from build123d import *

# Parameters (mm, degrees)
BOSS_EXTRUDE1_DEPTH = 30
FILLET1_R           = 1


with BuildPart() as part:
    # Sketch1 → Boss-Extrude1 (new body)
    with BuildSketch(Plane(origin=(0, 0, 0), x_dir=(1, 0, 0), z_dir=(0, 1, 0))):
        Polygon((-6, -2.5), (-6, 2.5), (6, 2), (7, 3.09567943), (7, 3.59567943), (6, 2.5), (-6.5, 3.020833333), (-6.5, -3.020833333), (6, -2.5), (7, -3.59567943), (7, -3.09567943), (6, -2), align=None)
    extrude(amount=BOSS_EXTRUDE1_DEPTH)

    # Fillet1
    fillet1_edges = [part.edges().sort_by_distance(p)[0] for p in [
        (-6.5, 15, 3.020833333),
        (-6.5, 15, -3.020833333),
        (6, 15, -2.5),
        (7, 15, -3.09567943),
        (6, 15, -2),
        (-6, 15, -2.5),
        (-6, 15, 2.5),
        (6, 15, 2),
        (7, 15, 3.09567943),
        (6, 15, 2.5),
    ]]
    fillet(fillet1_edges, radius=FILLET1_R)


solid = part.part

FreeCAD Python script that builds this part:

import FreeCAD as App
import Part
import Sketcher

V = App.Vector


def edges_at(feature, points):
    """Names of the edges that pass closest to the given points."""
    edges = feature.Shape.Edges
    near = lambda p: min(range(len(edges)), key=lambda i: edges[i].distToShape(Part.Vertex(*p))[0])
    return sorted({f"Edge{near(p) + 1}" for p in points})


def add_polygon(sketch, points):
    """Adds a closed chain of lines whose ends are joined by coincident constraints."""
    first, n = sketch.GeometryCount, len(points)
    for a, b in zip(points, points[1:] + points[:1]):
        sketch.addGeometry(Part.LineSegment(App.Vector(*a, 0), App.Vector(*b, 0)), False)
    for i in range(n):
        sketch.addConstraint(Sketcher.Constraint("Coincident", first + i, 2, first + (i + 1) % n, 1))

doc = App.newDocument("Part")
params = doc.addObject("Spreadsheet::Sheet", "Params")
for row, (alias, value) in enumerate([
    ("sketch1_height", "5 mm"),
    ("sketch1_height2", "0.5 mm"),
    ("pad1_length", "30 mm"),
    ("fillet_radius", "1 mm"),
], start=1):
    params.set(f"A{row}", alias)
    params.set(f"B{row}", "=" + value)
    params.setAlias(f"B{row}", alias)

body = doc.addObject("PartDesign::Body", "Body")

# Sketch on XZ plane
sketch1 = doc.addObject("Sketcher::SketchObject", "Sketch")
body.addObject(sketch1)
sketch1.AttachmentSupport = (doc.XZ_Plane, [""])
sketch1.MapMode = "FlatFace"
add_polygon(sketch1, [(-6, 2.5), (-6, -2.5), (6, -2), (7, -3.1), (7, -3.6), (6, -2.5), (-6.5, -3), (-6.5, 3), (6, 2.5), (7, 3.6), (7, 3.1), (6, 2)])  # lines 0-11
sketch1.addConstraint([
    Sketcher.Constraint("Vertical", 0),
    Sketcher.Constraint("Vertical", 3),
    Sketcher.Constraint("Vertical", 6),
    Sketcher.Constraint("Vertical", 9),
    Sketcher.Constraint("Symmetric", 0, 2, 7, 2, -1, 1),
    Sketcher.Constraint("Symmetric", 4, 2, 11, 2, -1, 1),
    Sketcher.Constraint("Symmetric", 3, 2, 8, 2, -1),
    Sketcher.Constraint("Symmetric", 1, 2, 10, 2, -1),
    Sketcher.Constraint("Parallel", 2, 4),
    Sketcher.Constraint("Parallel", 1, 5),
    Sketcher.Constraint("Parallel", 8, 10),
    Sketcher.Constraint("Parallel", 7, 11),
    Sketcher.Constraint("Horizontal", 0, 2, 4, 2),
    Sketcher.Constraint("Vertical", 1, 2, 4, 2),
    Sketcher.Constraint("DistanceY", 0, 2, 0, 1, 5.0),
    Sketcher.Constraint("DistanceY", 3, 2, 3, 1, 0.5),
    Sketcher.Constraint("DistanceX", 0, 2, -1, 1, 6.0),
    Sketcher.Constraint("DistanceX", -1, 1, 2, 2, 7.0),
    Sketcher.Constraint("DistanceX", 5, 2, -1, 1, 6.5),
    Sketcher.Constraint("DistanceY", 2, 2, -1, 1, 3.095679),
])
sketch1.setExpression("Constraints[26]", "Params.sketch1_height")
sketch1.setExpression("Constraints[27]", "Params.sketch1_height2")
pad1 = doc.addObject("PartDesign::Pad", "Pad")
body.addObject(pad1)
pad1.Profile = sketch1
pad1.setExpression("Length", "Params.pad1_length")
pad1.Reversed = True
doc.recompute()

fillet = doc.addObject("PartDesign::Fillet", "Fillet")
body.addObject(fillet)
fillet.Base = (pad1, edges_at(pad1, [
    (-6.5, 15, 3.021),
    (-6.5, 15, -3.021),
    (6, 15, -2.5),
    (7, 15, -3.096),
    (6, 15, -2),
    (-6, 15, -2.5),
    (-6, 15, 2.5),
    (6, 15, 2),
    (7, 15, 3.096),
    (6, 15, 2.5),
]))
fillet.setExpression("Radius", "Params.fillet_radius")

doc.recompute()
